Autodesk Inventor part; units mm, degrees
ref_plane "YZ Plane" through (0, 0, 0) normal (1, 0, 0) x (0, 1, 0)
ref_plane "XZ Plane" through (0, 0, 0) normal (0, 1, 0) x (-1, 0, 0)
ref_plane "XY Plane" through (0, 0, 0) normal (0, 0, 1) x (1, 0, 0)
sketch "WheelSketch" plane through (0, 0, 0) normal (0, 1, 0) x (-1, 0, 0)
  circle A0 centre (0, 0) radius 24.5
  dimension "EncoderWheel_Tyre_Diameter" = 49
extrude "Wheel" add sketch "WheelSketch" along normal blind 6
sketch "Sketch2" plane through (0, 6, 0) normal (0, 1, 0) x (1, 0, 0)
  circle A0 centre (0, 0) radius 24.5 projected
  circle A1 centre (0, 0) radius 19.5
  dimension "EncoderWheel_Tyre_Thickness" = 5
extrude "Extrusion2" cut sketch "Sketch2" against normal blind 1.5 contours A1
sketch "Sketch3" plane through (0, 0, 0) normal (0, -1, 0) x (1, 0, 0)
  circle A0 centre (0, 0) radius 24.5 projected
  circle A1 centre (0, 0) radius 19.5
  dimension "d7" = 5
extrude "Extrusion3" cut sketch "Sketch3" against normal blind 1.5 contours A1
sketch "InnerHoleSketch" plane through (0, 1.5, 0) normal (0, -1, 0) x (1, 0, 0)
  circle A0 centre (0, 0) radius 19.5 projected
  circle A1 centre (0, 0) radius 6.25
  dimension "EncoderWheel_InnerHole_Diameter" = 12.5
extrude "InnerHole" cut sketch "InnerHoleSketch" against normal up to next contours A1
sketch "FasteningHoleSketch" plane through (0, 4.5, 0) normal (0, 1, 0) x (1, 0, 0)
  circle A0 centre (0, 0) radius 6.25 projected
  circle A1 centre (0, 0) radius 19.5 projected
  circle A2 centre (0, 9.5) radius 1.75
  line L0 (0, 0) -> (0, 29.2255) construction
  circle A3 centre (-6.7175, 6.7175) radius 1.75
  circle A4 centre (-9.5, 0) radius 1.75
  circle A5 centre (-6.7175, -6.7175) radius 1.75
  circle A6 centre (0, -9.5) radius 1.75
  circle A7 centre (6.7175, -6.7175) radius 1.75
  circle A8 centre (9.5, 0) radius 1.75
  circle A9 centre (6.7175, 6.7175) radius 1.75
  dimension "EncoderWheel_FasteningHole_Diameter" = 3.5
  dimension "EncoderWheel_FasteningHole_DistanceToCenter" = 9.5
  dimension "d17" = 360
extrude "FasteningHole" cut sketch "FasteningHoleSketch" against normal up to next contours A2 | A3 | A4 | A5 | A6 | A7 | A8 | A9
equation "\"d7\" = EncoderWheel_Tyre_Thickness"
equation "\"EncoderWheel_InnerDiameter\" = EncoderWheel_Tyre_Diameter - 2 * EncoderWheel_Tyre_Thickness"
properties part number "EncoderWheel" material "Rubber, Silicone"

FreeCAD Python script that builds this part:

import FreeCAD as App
import Part
import Sketcher
from FreeCAD import Vector

doc = App.newDocument("Part")
body = doc.addObject("PartDesign::Body", "Body")

# Sketch on XZ plane
sketch1 = body.newObject("Sketcher::SketchObject", "Sketch")
sketch1.AttachmentSupport = (doc.getObject("XZ_Plane"), [""])
sketch1.MapMode = "FlatFace"
sketch1.addGeometry(Part.Circle(Vector(0, 0, 0), Vector(0, 0, 1), 24), False)
sketch1.addConstraint(Sketcher.Constraint("Coincident", 0, 3, -1, 1))
sketch1.addConstraint(Sketcher.Constraint("Diameter", 0, 49.0))
pad1 = body.newObject("PartDesign::Pad", "Pad")
pad1.Profile = sketch1
pad1.Length = 6
pad1.Reversed = True

# Sketch on XZ plane
sketch2 = body.newObject("Sketcher::SketchObject", "Sketch001")
sketch2.AttachmentSupport = (doc.getObject("XZ_Plane"), [""])
sketch2.MapMode = "FlatFace"
sketch2.AttachmentOffset = App.Placement(Vector(0, 0, -6), App.Rotation())
sketch2.addGeometry(Part.Circle(Vector(0, 0, 0), Vector(0, 0, 1), 20), False)
sketch2.addConstraint(Sketcher.Constraint("Coincident", 0, 3, -1, 1))
sketch2.addConstraint(Sketcher.Constraint("Diameter", 0, 39.0))
pocket1 = body.newObject("PartDesign::Pocket", "Pocket")
pocket1.Profile = sketch2
pocket1.Length = 1.5
pocket1.Reversed = True

# Sketch on XZ plane
sketch3 = body.newObject("Sketcher::SketchObject", "Sketch002")
sketch3.AttachmentSupport = (doc.getObject("XZ_Plane"), [""])
sketch3.MapMode = "FlatFace"
sketch3.addGeometry(Part.Circle(Vector(0, 0, 0), Vector(0, 0, 1), 20), False)
sketch3.addConstraint(Sketcher.Constraint("Coincident", 0, 3, -1, 1))
sketch3.addConstraint(Sketcher.Constraint("Diameter", 0, 39.0))
pocket2 = body.newObject("PartDesign::Pocket", "Pocket001")
pocket2.Profile = sketch3
pocket2.Length = 1.5

# Sketch on XZ plane
sketch4 = body.newObject("Sketcher::SketchObject", "Sketch003")
sketch4.AttachmentSupport = (doc.getObject("XZ_Plane"), [""])
sketch4.MapMode = "FlatFace"
sketch4.AttachmentOffset = App.Placement(Vector(0, 0, -1.5), App.Rotation())
sketch4.addGeometry(Part.Circle(Vector(0, 0, 0), Vector(0, 0, 1), 6), False)
sketch4.addConstraint(Sketcher.Constraint("Coincident", 0, 3, -1, 1))
sketch4.addConstraint(Sketcher.Constraint("Diameter", 0, 12.5))
pocket3 = body.newObject("PartDesign::Pocket", "Pocket002")
pocket3.Profile = sketch4
pocket3.Type = "UpToFirst"

# Sketch on XZ plane
sketch5 = body.newObject("Sketcher::SketchObject", "Sketch004")
sketch5.AttachmentSupport = (doc.getObject("XZ_Plane"), [""])
sketch5.MapMode = "FlatFace"
sketch5.AttachmentOffset = App.Placement(Vector(0, 0, -4.5), App.Rotation())
sketch5.addGeometry(Part.Circle(Vector(0, -9.5, 0), Vector(0, 0, 1), 1.8), False)
sketch5.addGeometry(Part.Circle(Vector(-6.7, -6.7, 0), Vector(0, 0, 1), 1.8), False)
sketch5.addGeometry(Part.Circle(Vector(-9.5, 0, 0), Vector(0, 0, 1), 1.8), False)
sketch5.addGeometry(Part.Circle(Vector(-6.7, 6.7, 0), Vector(0, 0, 1), 1.8), False)
sketch5.addGeometry(Part.Circle(Vector(0, 9.5, 0), Vector(0, 0, 1), 1.8), False)
sketch5.addGeometry(Part.Circle(Vector(6.7, 6.7, 0), Vector(0, 0, 1), 1.8), False)
sketch5.addGeometry(Part.Circle(Vector(9.5, 0, 0), Vector(0, 0, 1), 1.8), False)
sketch5.addGeometry(Part.Circle(Vector(6.7, -6.7, 0), Vector(0, 0, 1), 1.8), False)
sketch5.addConstraint(Sketcher.Constraint("Equal", 0, 1))
sketch5.addConstraint(Sketcher.Constraint("Equal", 1, 2))
sketch5.addConstraint(Sketcher.Constraint("Equal", 2, 3))
sketch5.addConstraint(Sketcher.Constraint("Equal", 3, 4))
sketch5.addConstraint(Sketcher.Constraint("Equal", 4, 5))
sketch5.addConstraint(Sketcher.Constraint("Equal", 5, 6))
sketch5.addConstraint(Sketcher.Constraint("Equal", 6, 7))
sketch5.addConstraint(Sketcher.Constraint("Symmetric", 0, 3, 4, 3, -1, 1))
sketch5.addConstraint(Sketcher.Constraint("Symmetric", 1, 3, 5, 3, -1, 1))
sketch5.addConstraint(Sketcher.Constraint("Symmetric", 2, 3, 6, 3, -1, 1))
sketch5.addConstraint(Sketcher.Constraint("Symmetric", 3, 3, 7, 3, -1, 1))
sketch5.addConstraint(Sketcher.Constraint("Symmetric", 3, 3, 5, 3, -2))
sketch5.addConstraint(Sketcher.Constraint("PointOnObject", 0, 3, -2))
sketch5.addConstraint(Sketcher.Constraint("PointOnObject", 2, 3, -1))
sketch5.addConstraint(Sketcher.Constraint("Diameter", 0, 3.5))
sketch5.addConstraint(Sketcher.Constraint("DistanceY", 0, 3, -1, 1, 9.5))
sketch5.addConstraint(Sketcher.Constraint("DistanceX", 2, 3, -1, 1, 9.5))
sketch5.addConstraint(Sketcher.Constraint("DistanceY", 1, 3, 3, 3, 13.435))
sketch5.addConstraint(Sketcher.Constraint("DistanceX", 3, 3, 5, 3, 13.435))
pocket4 = body.newObject("PartDesign::Pocket", "Pocket003")
pocket4.Profile = sketch5
pocket4.Length = 3
pocket4.Reversed = True

doc.recompute()
